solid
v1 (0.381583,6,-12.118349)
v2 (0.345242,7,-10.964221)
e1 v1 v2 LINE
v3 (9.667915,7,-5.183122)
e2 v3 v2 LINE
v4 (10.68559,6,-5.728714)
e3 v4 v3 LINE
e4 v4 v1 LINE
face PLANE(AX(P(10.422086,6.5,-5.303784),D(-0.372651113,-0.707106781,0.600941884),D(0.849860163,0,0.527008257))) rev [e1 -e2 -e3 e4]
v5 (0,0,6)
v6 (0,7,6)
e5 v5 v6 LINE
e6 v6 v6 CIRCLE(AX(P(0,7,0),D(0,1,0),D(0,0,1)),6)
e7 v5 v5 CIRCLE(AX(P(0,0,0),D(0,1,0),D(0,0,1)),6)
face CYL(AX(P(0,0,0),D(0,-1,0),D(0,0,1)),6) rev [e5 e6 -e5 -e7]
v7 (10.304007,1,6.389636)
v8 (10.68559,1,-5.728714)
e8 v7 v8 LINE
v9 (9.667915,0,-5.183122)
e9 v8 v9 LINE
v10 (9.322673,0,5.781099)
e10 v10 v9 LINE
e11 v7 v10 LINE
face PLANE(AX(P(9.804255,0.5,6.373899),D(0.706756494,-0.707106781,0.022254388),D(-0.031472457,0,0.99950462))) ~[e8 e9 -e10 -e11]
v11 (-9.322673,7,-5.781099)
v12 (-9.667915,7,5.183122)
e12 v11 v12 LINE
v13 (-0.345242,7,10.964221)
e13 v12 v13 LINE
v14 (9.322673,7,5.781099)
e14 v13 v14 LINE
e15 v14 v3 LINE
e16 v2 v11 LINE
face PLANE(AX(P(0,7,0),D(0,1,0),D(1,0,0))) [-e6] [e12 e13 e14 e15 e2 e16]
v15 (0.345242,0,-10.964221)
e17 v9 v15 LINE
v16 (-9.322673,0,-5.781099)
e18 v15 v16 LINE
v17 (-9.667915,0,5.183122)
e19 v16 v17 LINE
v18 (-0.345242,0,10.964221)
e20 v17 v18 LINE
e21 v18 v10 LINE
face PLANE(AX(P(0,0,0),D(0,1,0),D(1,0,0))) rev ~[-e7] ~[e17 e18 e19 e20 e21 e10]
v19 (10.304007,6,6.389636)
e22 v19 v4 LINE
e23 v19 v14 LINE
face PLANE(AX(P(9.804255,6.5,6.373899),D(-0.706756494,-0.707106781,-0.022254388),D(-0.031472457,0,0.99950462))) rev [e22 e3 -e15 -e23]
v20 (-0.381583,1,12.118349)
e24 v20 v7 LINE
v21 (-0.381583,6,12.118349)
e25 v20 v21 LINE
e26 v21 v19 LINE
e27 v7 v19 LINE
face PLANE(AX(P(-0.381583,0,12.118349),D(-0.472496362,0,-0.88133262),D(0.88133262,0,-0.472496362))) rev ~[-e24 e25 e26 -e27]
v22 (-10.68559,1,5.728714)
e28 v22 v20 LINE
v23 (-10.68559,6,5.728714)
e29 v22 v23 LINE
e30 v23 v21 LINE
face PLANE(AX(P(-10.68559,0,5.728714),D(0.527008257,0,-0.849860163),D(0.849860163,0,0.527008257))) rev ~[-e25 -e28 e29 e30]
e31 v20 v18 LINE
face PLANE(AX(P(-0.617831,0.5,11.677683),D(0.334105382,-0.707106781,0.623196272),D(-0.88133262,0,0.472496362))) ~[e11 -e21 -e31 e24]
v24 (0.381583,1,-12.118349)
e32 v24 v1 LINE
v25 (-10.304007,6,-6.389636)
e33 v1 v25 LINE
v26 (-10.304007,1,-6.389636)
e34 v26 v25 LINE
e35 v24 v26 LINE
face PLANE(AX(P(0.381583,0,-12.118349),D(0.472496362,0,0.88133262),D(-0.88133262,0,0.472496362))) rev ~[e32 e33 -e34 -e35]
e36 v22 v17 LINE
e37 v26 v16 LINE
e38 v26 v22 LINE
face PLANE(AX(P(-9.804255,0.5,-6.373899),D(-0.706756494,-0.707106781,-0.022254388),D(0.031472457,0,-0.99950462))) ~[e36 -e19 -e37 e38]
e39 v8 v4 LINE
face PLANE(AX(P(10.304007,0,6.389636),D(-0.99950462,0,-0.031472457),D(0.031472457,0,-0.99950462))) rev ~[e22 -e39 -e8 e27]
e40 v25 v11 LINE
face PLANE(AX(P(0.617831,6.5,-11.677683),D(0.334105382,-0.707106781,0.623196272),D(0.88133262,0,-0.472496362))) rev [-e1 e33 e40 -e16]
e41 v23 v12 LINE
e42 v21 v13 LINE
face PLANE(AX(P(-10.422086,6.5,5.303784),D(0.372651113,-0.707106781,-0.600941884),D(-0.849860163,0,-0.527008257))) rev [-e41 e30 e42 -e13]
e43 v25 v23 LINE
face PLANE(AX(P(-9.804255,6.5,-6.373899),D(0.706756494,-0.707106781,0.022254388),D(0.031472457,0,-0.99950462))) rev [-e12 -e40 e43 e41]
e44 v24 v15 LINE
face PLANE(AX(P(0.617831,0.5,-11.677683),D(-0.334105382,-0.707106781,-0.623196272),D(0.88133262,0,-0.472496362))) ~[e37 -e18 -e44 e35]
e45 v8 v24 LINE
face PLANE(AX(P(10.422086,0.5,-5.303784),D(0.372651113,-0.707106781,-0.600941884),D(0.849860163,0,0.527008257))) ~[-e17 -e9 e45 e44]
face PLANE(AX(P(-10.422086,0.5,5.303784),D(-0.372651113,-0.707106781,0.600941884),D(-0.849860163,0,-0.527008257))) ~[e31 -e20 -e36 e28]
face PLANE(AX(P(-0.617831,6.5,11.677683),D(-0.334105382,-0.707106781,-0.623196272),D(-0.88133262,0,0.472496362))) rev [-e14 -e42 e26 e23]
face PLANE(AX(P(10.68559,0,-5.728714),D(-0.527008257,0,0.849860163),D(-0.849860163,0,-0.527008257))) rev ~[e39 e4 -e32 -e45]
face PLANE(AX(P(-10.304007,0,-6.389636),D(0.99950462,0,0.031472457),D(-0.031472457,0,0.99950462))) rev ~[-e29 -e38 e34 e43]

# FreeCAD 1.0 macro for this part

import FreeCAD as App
import Part
import Sketcher
Q = App.Units.Quantity


def edges_at(feature, points):
    """Names of the edges that pass closest to the given points."""
    edges = feature.Shape.Edges
    near = lambda p: min(range(len(edges)), key=lambda i: edges[i].distToShape(Part.Vertex(*p))[0])
    return sorted({f"Edge{near(p) + 1}" for p in points})

doc = App.newDocument("Part")
params = doc.addObject("Spreadsheet::Sheet", "Params")
for row, (alias, value) in enumerate([
    ("sketch1_diameter", "12 mm"),
    ("pad1_length", "7 mm"),
    ("chamfer_size", "1 mm"),
], start=1):
    params.set(f"A{row}", alias)
    params.set(f"B{row}", "=" + value)
    params.setAlias(f"B{row}", alias)

body = doc.addObject("PartDesign::Body", "Body")

# Sketch on XZ plane
sketch1 = body.newObject("Sketcher::SketchObject", "Sketch")
sketch1.AttachmentSupport = (doc.getObject("XZ_Plane"), [""])
sketch1.MapMode = "FlatFace"
sketch1.addGeometry(Part.LineSegment(App.Vector(10, 6, 0), App.Vector(11, -6, 0)), False)
sketch1.addGeometry(Part.LineSegment(App.Vector(11, -6, 0), App.Vector(0, -12, 0)), False)
sketch1.addGeometry(Part.LineSegment(App.Vector(0, -12, 0), App.Vector(-10, -6, 0)), False)
sketch1.addGeometry(Part.LineSegment(App.Vector(-10, -6, 0), App.Vector(-11, 6, 0)), False)
sketch1.addGeometry(Part.LineSegment(App.Vector(-11, 6, 0), App.Vector(0, 12, 0)), False)
sketch1.addGeometry(Part.LineSegment(App.Vector(0, 12, 0), App.Vector(10, 6, 0)), False)
sketch1.addGeometry(Part.Circle(App.Vector(0, 0, 0), App.Vector(0, 0, 1), 6), False)
sketch1.addConstraint(Sketcher.Constraint("Coincident", 0, 2, 1, 1))
sketch1.addConstraint(Sketcher.Constraint("Coincident", 1, 2, 2, 1))
sketch1.addConstraint(Sketcher.Constraint("Coincident", 2, 2, 3, 1))
sketch1.addConstraint(Sketcher.Constraint("Coincident", 3, 2, 4, 1))
sketch1.addConstraint(Sketcher.Constraint("Coincident", 4, 2, 5, 1))
sketch1.addConstraint(Sketcher.Constraint("Coincident", 5, 2, 0, 1))
sketch1.addConstraint(Sketcher.Constraint("Coincident", 6, 3, -1, 1))
sketch1.addConstraint(Sketcher.Constraint("Symmetric", 0, 2, 3, 2, -1, 1))
sketch1.addConstraint(Sketcher.Constraint("Symmetric", 1, 2, 4, 2, -1, 1))
sketch1.addConstraint(Sketcher.Constraint("Symmetric", 2, 2, 5, 2, -1, 1))
sketch1.addConstraint(Sketcher.Constraint("Equal", 0, 1))
sketch1.addConstraint(Sketcher.Constraint("Equal", 1, 2))
sketch1.addConstraint(Sketcher.Constraint("Diameter", 6, Q("12 mm")))
sketch1.addConstraint(Sketcher.Constraint("DistanceY", 1, 2, 4, 2, Q("24.236699 mm")))
sketch1.addConstraint(Sketcher.Constraint("DistanceX", -1, 1, 0, 2, Q("10.68559 mm")))
sketch1.addConstraint(Sketcher.Constraint("DistanceX", 2, 2, 1, 2, Q("10.68559 mm")))
sketch1.addConstraint(Sketcher.Constraint("DistanceY", 2, 2, 0, 2, Q("0.660922 mm")))
sketch1.setExpression("Constraints[12]", "Params.sketch1_diameter")
pad1 = body.newObject("PartDesign::Pad", "Pad")
pad1.Profile = sketch1
pad1.setExpression("Length", "Params.pad1_length")
pad1.Reversed = True
doc.recompute()

chamfer = body.newObject("PartDesign::Chamfer", "Chamfer")
chamfer.Base = (pad1, edges_at(pad1, [
    (5.534, 7, -8.924),
    (-4.961, 7, -9.254),
    (-10.495, 7, -0.33),
    (-5.534, 7, 8.924),
    (4.961, 7, 9.254),
    (-5.534, 0, 8.924),
    (-10.495, 0, -0.33),
    (-4.961, 0, -9.254),
    (10.495, 7, 0.33),
    (5.534, 0, -8.924),
    (10.495, 0, 0.33),
    (4.961, 0, 9.254),
]))
chamfer.setExpression("Size", "Params.chamfer_size")

doc.recompute()
